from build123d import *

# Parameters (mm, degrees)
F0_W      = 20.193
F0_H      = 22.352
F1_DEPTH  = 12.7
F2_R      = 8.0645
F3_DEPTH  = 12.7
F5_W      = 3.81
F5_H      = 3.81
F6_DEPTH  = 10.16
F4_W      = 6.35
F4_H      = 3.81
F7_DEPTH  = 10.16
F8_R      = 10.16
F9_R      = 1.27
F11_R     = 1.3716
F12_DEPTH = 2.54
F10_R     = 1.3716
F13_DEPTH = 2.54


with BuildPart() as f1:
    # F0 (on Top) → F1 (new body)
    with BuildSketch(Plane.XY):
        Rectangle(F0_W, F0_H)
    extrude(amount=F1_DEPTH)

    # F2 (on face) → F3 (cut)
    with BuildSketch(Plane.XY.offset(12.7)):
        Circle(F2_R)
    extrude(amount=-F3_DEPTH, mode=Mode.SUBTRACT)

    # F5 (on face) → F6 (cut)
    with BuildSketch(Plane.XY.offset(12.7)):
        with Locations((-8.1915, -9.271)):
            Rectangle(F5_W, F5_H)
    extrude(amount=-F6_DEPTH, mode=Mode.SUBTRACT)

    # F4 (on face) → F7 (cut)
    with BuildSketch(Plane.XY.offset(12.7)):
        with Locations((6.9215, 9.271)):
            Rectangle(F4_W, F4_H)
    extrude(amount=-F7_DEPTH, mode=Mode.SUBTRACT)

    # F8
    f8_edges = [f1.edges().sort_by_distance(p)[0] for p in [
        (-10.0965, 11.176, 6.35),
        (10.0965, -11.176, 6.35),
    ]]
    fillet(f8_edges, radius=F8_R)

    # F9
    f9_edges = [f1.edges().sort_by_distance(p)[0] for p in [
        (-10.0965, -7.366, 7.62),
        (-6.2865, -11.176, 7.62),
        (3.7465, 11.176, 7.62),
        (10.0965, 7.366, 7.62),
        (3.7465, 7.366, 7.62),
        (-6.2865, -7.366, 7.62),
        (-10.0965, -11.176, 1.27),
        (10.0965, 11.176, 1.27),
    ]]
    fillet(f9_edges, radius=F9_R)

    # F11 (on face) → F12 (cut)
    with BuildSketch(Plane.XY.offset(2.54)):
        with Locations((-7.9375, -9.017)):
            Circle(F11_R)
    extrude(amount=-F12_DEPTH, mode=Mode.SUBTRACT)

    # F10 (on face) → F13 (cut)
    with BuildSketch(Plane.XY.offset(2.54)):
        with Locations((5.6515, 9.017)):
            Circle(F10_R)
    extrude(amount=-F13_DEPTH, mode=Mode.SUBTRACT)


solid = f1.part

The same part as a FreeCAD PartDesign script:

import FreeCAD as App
import Part
import Sketcher

V = App.Vector
Q = App.Units.Quantity


def edges_at(feature, points):
    """Names of the edges that pass closest to the given points."""
    edges = feature.Shape.Edges
    near = lambda p: min(range(len(edges)), key=lambda i: edges[i].distToShape(Part.Vertex(*p))[0])
    return sorted({f"Edge{near(p) + 1}" for p in points})


def add_polygon(sketch, points):
    """Adds a closed chain of lines whose ends are joined by coincident constraints."""
    first, n = sketch.GeometryCount, len(points)
    for a, b in zip(points, points[1:] + points[:1]):
        sketch.addGeometry(Part.LineSegment(App.Vector(*a, 0), App.Vector(*b, 0)), False)
    for i in range(n):
        sketch.addConstraint(Sketcher.Constraint("Coincident", first + i, 2, first + (i + 1) % n, 1))

doc = App.newDocument("Part")
params = doc.addObject("Spreadsheet::Sheet", "Params")
for row, (alias, value) in enumerate([
    ("sketch1_height", "0.88 in"),
    ("sketch1_width", "0.795 in"),
    ("pad1_length", "0.5 in"),
    ("sketch2_diameter", "0.635 in"),
    ("pocket1_length", "0.5 in"),
    ("sketch3_width", "0.15 in"),
    ("pocket2_length", "0.4 in"),
    ("sketch4_width", "0.25 in"),
    ("sketch4_height", "0.15 in"),
    ("pocket3_length", "0.4 in"),
    ("fillet_radius", "0.4 in"),
    ("fillet2_radius", "0.05 in"),
    ("sketch5_diameter", "0.108 in"),
    ("pocket4_length", "0.1 in"),
    ("sketch6_diameter", "0.108 in"),
    ("pocket5_length", "0.1 in"),
], start=1):
    params.set(f"A{row}", alias)
    params.set(f"B{row}", "=" + value)
    params.setAlias(f"B{row}", alias)

body = doc.addObject("PartDesign::Body", "Body")

sketch1 = doc.addObject("Sketcher::SketchObject", "Sketch")
body.addObject(sketch1)
sketch1.AttachmentSupport = (doc.XY_Plane, [""])
sketch1.MapMode = "FlatFace"
add_polygon(sketch1, [(-10, 11), (-10, -11), (10, -11), (10, 11)])
sketch1.addConstraint([
    Sketcher.Constraint("Vertical", 0),
    Sketcher.Constraint("Horizontal", 1),
    Sketcher.Constraint("Vertical", 2),
    Sketcher.Constraint("Horizontal", 3),
    Sketcher.Constraint("Symmetric", 0, 2, 2, 2, -1, 1),
    Sketcher.Constraint("DistanceY", 0, 2, 0, 1, Q("0.88 in")),
    Sketcher.Constraint("DistanceX", 1, 1, 1, 2, Q("0.795 in")),
])
sketch1.setExpression("Constraints[9]", "Params.sketch1_height")
sketch1.setExpression("Constraints[10]", "Params.sketch1_width")
pad1 = doc.addObject("PartDesign::Pad", "Pad")
body.addObject(pad1)
pad1.Profile = sketch1
pad1.setExpression("Length", "Params.pad1_length")

sketch2 = doc.addObject("Sketcher::SketchObject", "Sketch001")
body.addObject(sketch2)
sketch2.AttachmentSupport = (doc.XY_Plane, [""])
sketch2.MapMode = "FlatFace"
sketch2.AttachmentOffset = App.Placement(V(0, 0, 0.5 * 25.4), App.Rotation())
sketch2.addGeometry(Part.Circle(V(0, 0, 0), V(0, 0, 1), 8), False)
sketch2.addConstraint([
    Sketcher.Constraint("Coincident", 0, 3, -1, 1),
    Sketcher.Constraint("Diameter", 0, Q("0.635 in")),
])
sketch2.setExpression("Constraints[1]", "Params.sketch2_diameter")
pocket1 = doc.addObject("PartDesign::Pocket", "Pocket")
body.addObject(pocket1)
pocket1.Profile = sketch2
pocket1.setExpression("Length", "Params.pocket1_length")

sketch3 = doc.addObject("Sketcher::SketchObject", "Sketch002")
body.addObject(sketch3)
sketch3.AttachmentSupport = (doc.XY_Plane, [""])
sketch3.MapMode = "FlatFace"
sketch3.AttachmentOffset = App.Placement(V(0, 0, 0.5 * 25.4), App.Rotation())
add_polygon(sketch3, [(-10.1, -7.4), (-10.1, -11.2), (-6.3, -11.2), (-6.3, -7.4)])
sketch3.addConstraint([
    Sketcher.Constraint("Vertical", 0),
    Sketcher.Constraint("Horizontal", 1),
    Sketcher.Constraint("Vertical", 2),
    Sketcher.Constraint("Horizontal", 3),
    Sketcher.Constraint("Equal", 3, 0),
    Sketcher.Constraint("DistanceX", 1, 1, 1, 2, Q("0.15 in")),
    Sketcher.Constraint("DistanceY", 0, 2, -1, 1, Q("0.44 in")),
    Sketcher.Constraint("DistanceX", 0, 2, -1, 1, Q("0.3975 in")),
])
sketch3.setExpression("Constraints[9]", "Params.sketch3_width")
pocket2 = doc.addObject("PartDesign::Pocket", "Pocket001")
body.addObject(pocket2)
pocket2.Profile = sketch3
pocket2.setExpression("Length", "Params.pocket2_length")

sketch4 = doc.addObject("Sketcher::SketchObject", "Sketch003")
body.addObject(sketch4)
sketch4.AttachmentSupport = (doc.XY_Plane, [""])
sketch4.MapMode = "FlatFace"
sketch4.AttachmentOffset = App.Placement(V(0, 0, 0.5 * 25.4), App.Rotation())
add_polygon(sketch4, [(3.7, 11.2), (3.7, 7.4), (10.1, 7.4), (10.1, 11.2)])
sketch4.addConstraint([
    Sketcher.Constraint("Vertical", 0),
    Sketcher.Constraint("Horizontal", 1),
    Sketcher.Constraint("Vertical", 2),
    Sketcher.Constraint("Horizontal", 3),
    Sketcher.Constraint("DistanceX", 1, 1, 1, 2, Q("0.25 in")),
    Sketcher.Constraint("DistanceY", 0, 2, 0, 1, Q("0.15 in")),
    Sketcher.Constraint("DistanceY", -1, 1, 0, 2, Q("0.29 in")),
    Sketcher.Constraint("DistanceX", -1, 1, 0, 2, Q("0.1475 in")),
])
sketch4.setExpression("Constraints[8]", "Params.sketch4_width")
sketch4.setExpression("Constraints[9]", "Params.sketch4_height")
pocket3 = doc.addObject("PartDesign::Pocket", "Pocket002")
body.addObject(pocket3)
pocket3.Profile = sketch4
pocket3.setExpression("Length", "Params.pocket3_length")
doc.recompute()

fillet = doc.addObject("PartDesign::Fillet", "Fillet")
body.addObject(fillet)
fillet.Base = (pocket3, edges_at(pocket3, [(-10.097, 11.176, 6.35), (10.097, -11.176, 6.35)]))
fillet.setExpression("Radius", "Params.fillet_radius")
doc.recompute()

fillet2 = doc.addObject("PartDesign::Fillet", "Fillet001")
body.addObject(fillet2)
fillet2.Base = (fillet, edges_at(fillet, [
    (-10.097, -7.366, 7.62),
    (-6.287, -11.176, 7.62),
    (3.747, 11.176, 7.62),
    (10.097, 7.366, 7.62),
    (3.747, 7.366, 7.62),
    (-6.287, -7.366, 7.62),
    (-10.097, -11.176, 1.27),
    (10.097, 11.176, 1.27),
]))
fillet2.setExpression("Radius", "Params.fillet2_radius")

sketch5 = doc.addObject("Sketcher::SketchObject", "Sketch004")
body.addObject(sketch5)
sketch5.AttachmentSupport = (doc.XY_Plane, [""])
sketch5.MapMode = "FlatFace"
sketch5.AttachmentOffset = App.Placement(V(0, 0, 0.1 * 25.4), App.Rotation())
sketch5.addGeometry(Part.Circle(V(-7.9, -9, 0), V(0, 0, 1), 1.4), False)
sketch5.addConstraint([
    Sketcher.Constraint("Diameter", 0, Q("0.108 in")),
    Sketcher.Constraint("DistanceX", 0, 3, -1, 1, Q("0.3125 in")),
    Sketcher.Constraint("DistanceY", 0, 3, -1, 1, Q("0.355 in")),
])
sketch5.setExpression("Constraints[0]", "Params.sketch5_diameter")
pocket4 = doc.addObject("PartDesign::Pocket", "Pocket003")
body.addObject(pocket4)
pocket4.Profile = sketch5
pocket4.setExpression("Length", "Params.pocket4_length")

sketch6 = doc.addObject("Sketcher::SketchObject", "Sketch005")
body.addObject(sketch6)
sketch6.AttachmentSupport = (doc.XY_Plane, [""])
sketch6.MapMode = "FlatFace"
sketch6.AttachmentOffset = App.Placement(V(0, 0, 0.1 * 25.4), App.Rotation())
sketch6.addGeometry(Part.Circle(V(5.7, 9, 0), V(0, 0, 1), 1.4), False)
sketch6.addConstraint([
    Sketcher.Constraint("Diameter", 0, Q("0.108 in")),
    Sketcher.Constraint("DistanceY", -1, 1, 0, 3, Q("0.355 in")),
    Sketcher.Constraint("DistanceX", -1, 1, 0, 3, Q("0.2225 in")),
])
sketch6.setExpression("Constraints[0]", "Params.sketch6_diameter")
pocket5 = doc.addObject("PartDesign::Pocket", "Pocket004")
body.addObject(pocket5)
pocket5.Profile = sketch6
pocket5.setExpression("Length", "Params.pocket5_length")

doc.recompute()
